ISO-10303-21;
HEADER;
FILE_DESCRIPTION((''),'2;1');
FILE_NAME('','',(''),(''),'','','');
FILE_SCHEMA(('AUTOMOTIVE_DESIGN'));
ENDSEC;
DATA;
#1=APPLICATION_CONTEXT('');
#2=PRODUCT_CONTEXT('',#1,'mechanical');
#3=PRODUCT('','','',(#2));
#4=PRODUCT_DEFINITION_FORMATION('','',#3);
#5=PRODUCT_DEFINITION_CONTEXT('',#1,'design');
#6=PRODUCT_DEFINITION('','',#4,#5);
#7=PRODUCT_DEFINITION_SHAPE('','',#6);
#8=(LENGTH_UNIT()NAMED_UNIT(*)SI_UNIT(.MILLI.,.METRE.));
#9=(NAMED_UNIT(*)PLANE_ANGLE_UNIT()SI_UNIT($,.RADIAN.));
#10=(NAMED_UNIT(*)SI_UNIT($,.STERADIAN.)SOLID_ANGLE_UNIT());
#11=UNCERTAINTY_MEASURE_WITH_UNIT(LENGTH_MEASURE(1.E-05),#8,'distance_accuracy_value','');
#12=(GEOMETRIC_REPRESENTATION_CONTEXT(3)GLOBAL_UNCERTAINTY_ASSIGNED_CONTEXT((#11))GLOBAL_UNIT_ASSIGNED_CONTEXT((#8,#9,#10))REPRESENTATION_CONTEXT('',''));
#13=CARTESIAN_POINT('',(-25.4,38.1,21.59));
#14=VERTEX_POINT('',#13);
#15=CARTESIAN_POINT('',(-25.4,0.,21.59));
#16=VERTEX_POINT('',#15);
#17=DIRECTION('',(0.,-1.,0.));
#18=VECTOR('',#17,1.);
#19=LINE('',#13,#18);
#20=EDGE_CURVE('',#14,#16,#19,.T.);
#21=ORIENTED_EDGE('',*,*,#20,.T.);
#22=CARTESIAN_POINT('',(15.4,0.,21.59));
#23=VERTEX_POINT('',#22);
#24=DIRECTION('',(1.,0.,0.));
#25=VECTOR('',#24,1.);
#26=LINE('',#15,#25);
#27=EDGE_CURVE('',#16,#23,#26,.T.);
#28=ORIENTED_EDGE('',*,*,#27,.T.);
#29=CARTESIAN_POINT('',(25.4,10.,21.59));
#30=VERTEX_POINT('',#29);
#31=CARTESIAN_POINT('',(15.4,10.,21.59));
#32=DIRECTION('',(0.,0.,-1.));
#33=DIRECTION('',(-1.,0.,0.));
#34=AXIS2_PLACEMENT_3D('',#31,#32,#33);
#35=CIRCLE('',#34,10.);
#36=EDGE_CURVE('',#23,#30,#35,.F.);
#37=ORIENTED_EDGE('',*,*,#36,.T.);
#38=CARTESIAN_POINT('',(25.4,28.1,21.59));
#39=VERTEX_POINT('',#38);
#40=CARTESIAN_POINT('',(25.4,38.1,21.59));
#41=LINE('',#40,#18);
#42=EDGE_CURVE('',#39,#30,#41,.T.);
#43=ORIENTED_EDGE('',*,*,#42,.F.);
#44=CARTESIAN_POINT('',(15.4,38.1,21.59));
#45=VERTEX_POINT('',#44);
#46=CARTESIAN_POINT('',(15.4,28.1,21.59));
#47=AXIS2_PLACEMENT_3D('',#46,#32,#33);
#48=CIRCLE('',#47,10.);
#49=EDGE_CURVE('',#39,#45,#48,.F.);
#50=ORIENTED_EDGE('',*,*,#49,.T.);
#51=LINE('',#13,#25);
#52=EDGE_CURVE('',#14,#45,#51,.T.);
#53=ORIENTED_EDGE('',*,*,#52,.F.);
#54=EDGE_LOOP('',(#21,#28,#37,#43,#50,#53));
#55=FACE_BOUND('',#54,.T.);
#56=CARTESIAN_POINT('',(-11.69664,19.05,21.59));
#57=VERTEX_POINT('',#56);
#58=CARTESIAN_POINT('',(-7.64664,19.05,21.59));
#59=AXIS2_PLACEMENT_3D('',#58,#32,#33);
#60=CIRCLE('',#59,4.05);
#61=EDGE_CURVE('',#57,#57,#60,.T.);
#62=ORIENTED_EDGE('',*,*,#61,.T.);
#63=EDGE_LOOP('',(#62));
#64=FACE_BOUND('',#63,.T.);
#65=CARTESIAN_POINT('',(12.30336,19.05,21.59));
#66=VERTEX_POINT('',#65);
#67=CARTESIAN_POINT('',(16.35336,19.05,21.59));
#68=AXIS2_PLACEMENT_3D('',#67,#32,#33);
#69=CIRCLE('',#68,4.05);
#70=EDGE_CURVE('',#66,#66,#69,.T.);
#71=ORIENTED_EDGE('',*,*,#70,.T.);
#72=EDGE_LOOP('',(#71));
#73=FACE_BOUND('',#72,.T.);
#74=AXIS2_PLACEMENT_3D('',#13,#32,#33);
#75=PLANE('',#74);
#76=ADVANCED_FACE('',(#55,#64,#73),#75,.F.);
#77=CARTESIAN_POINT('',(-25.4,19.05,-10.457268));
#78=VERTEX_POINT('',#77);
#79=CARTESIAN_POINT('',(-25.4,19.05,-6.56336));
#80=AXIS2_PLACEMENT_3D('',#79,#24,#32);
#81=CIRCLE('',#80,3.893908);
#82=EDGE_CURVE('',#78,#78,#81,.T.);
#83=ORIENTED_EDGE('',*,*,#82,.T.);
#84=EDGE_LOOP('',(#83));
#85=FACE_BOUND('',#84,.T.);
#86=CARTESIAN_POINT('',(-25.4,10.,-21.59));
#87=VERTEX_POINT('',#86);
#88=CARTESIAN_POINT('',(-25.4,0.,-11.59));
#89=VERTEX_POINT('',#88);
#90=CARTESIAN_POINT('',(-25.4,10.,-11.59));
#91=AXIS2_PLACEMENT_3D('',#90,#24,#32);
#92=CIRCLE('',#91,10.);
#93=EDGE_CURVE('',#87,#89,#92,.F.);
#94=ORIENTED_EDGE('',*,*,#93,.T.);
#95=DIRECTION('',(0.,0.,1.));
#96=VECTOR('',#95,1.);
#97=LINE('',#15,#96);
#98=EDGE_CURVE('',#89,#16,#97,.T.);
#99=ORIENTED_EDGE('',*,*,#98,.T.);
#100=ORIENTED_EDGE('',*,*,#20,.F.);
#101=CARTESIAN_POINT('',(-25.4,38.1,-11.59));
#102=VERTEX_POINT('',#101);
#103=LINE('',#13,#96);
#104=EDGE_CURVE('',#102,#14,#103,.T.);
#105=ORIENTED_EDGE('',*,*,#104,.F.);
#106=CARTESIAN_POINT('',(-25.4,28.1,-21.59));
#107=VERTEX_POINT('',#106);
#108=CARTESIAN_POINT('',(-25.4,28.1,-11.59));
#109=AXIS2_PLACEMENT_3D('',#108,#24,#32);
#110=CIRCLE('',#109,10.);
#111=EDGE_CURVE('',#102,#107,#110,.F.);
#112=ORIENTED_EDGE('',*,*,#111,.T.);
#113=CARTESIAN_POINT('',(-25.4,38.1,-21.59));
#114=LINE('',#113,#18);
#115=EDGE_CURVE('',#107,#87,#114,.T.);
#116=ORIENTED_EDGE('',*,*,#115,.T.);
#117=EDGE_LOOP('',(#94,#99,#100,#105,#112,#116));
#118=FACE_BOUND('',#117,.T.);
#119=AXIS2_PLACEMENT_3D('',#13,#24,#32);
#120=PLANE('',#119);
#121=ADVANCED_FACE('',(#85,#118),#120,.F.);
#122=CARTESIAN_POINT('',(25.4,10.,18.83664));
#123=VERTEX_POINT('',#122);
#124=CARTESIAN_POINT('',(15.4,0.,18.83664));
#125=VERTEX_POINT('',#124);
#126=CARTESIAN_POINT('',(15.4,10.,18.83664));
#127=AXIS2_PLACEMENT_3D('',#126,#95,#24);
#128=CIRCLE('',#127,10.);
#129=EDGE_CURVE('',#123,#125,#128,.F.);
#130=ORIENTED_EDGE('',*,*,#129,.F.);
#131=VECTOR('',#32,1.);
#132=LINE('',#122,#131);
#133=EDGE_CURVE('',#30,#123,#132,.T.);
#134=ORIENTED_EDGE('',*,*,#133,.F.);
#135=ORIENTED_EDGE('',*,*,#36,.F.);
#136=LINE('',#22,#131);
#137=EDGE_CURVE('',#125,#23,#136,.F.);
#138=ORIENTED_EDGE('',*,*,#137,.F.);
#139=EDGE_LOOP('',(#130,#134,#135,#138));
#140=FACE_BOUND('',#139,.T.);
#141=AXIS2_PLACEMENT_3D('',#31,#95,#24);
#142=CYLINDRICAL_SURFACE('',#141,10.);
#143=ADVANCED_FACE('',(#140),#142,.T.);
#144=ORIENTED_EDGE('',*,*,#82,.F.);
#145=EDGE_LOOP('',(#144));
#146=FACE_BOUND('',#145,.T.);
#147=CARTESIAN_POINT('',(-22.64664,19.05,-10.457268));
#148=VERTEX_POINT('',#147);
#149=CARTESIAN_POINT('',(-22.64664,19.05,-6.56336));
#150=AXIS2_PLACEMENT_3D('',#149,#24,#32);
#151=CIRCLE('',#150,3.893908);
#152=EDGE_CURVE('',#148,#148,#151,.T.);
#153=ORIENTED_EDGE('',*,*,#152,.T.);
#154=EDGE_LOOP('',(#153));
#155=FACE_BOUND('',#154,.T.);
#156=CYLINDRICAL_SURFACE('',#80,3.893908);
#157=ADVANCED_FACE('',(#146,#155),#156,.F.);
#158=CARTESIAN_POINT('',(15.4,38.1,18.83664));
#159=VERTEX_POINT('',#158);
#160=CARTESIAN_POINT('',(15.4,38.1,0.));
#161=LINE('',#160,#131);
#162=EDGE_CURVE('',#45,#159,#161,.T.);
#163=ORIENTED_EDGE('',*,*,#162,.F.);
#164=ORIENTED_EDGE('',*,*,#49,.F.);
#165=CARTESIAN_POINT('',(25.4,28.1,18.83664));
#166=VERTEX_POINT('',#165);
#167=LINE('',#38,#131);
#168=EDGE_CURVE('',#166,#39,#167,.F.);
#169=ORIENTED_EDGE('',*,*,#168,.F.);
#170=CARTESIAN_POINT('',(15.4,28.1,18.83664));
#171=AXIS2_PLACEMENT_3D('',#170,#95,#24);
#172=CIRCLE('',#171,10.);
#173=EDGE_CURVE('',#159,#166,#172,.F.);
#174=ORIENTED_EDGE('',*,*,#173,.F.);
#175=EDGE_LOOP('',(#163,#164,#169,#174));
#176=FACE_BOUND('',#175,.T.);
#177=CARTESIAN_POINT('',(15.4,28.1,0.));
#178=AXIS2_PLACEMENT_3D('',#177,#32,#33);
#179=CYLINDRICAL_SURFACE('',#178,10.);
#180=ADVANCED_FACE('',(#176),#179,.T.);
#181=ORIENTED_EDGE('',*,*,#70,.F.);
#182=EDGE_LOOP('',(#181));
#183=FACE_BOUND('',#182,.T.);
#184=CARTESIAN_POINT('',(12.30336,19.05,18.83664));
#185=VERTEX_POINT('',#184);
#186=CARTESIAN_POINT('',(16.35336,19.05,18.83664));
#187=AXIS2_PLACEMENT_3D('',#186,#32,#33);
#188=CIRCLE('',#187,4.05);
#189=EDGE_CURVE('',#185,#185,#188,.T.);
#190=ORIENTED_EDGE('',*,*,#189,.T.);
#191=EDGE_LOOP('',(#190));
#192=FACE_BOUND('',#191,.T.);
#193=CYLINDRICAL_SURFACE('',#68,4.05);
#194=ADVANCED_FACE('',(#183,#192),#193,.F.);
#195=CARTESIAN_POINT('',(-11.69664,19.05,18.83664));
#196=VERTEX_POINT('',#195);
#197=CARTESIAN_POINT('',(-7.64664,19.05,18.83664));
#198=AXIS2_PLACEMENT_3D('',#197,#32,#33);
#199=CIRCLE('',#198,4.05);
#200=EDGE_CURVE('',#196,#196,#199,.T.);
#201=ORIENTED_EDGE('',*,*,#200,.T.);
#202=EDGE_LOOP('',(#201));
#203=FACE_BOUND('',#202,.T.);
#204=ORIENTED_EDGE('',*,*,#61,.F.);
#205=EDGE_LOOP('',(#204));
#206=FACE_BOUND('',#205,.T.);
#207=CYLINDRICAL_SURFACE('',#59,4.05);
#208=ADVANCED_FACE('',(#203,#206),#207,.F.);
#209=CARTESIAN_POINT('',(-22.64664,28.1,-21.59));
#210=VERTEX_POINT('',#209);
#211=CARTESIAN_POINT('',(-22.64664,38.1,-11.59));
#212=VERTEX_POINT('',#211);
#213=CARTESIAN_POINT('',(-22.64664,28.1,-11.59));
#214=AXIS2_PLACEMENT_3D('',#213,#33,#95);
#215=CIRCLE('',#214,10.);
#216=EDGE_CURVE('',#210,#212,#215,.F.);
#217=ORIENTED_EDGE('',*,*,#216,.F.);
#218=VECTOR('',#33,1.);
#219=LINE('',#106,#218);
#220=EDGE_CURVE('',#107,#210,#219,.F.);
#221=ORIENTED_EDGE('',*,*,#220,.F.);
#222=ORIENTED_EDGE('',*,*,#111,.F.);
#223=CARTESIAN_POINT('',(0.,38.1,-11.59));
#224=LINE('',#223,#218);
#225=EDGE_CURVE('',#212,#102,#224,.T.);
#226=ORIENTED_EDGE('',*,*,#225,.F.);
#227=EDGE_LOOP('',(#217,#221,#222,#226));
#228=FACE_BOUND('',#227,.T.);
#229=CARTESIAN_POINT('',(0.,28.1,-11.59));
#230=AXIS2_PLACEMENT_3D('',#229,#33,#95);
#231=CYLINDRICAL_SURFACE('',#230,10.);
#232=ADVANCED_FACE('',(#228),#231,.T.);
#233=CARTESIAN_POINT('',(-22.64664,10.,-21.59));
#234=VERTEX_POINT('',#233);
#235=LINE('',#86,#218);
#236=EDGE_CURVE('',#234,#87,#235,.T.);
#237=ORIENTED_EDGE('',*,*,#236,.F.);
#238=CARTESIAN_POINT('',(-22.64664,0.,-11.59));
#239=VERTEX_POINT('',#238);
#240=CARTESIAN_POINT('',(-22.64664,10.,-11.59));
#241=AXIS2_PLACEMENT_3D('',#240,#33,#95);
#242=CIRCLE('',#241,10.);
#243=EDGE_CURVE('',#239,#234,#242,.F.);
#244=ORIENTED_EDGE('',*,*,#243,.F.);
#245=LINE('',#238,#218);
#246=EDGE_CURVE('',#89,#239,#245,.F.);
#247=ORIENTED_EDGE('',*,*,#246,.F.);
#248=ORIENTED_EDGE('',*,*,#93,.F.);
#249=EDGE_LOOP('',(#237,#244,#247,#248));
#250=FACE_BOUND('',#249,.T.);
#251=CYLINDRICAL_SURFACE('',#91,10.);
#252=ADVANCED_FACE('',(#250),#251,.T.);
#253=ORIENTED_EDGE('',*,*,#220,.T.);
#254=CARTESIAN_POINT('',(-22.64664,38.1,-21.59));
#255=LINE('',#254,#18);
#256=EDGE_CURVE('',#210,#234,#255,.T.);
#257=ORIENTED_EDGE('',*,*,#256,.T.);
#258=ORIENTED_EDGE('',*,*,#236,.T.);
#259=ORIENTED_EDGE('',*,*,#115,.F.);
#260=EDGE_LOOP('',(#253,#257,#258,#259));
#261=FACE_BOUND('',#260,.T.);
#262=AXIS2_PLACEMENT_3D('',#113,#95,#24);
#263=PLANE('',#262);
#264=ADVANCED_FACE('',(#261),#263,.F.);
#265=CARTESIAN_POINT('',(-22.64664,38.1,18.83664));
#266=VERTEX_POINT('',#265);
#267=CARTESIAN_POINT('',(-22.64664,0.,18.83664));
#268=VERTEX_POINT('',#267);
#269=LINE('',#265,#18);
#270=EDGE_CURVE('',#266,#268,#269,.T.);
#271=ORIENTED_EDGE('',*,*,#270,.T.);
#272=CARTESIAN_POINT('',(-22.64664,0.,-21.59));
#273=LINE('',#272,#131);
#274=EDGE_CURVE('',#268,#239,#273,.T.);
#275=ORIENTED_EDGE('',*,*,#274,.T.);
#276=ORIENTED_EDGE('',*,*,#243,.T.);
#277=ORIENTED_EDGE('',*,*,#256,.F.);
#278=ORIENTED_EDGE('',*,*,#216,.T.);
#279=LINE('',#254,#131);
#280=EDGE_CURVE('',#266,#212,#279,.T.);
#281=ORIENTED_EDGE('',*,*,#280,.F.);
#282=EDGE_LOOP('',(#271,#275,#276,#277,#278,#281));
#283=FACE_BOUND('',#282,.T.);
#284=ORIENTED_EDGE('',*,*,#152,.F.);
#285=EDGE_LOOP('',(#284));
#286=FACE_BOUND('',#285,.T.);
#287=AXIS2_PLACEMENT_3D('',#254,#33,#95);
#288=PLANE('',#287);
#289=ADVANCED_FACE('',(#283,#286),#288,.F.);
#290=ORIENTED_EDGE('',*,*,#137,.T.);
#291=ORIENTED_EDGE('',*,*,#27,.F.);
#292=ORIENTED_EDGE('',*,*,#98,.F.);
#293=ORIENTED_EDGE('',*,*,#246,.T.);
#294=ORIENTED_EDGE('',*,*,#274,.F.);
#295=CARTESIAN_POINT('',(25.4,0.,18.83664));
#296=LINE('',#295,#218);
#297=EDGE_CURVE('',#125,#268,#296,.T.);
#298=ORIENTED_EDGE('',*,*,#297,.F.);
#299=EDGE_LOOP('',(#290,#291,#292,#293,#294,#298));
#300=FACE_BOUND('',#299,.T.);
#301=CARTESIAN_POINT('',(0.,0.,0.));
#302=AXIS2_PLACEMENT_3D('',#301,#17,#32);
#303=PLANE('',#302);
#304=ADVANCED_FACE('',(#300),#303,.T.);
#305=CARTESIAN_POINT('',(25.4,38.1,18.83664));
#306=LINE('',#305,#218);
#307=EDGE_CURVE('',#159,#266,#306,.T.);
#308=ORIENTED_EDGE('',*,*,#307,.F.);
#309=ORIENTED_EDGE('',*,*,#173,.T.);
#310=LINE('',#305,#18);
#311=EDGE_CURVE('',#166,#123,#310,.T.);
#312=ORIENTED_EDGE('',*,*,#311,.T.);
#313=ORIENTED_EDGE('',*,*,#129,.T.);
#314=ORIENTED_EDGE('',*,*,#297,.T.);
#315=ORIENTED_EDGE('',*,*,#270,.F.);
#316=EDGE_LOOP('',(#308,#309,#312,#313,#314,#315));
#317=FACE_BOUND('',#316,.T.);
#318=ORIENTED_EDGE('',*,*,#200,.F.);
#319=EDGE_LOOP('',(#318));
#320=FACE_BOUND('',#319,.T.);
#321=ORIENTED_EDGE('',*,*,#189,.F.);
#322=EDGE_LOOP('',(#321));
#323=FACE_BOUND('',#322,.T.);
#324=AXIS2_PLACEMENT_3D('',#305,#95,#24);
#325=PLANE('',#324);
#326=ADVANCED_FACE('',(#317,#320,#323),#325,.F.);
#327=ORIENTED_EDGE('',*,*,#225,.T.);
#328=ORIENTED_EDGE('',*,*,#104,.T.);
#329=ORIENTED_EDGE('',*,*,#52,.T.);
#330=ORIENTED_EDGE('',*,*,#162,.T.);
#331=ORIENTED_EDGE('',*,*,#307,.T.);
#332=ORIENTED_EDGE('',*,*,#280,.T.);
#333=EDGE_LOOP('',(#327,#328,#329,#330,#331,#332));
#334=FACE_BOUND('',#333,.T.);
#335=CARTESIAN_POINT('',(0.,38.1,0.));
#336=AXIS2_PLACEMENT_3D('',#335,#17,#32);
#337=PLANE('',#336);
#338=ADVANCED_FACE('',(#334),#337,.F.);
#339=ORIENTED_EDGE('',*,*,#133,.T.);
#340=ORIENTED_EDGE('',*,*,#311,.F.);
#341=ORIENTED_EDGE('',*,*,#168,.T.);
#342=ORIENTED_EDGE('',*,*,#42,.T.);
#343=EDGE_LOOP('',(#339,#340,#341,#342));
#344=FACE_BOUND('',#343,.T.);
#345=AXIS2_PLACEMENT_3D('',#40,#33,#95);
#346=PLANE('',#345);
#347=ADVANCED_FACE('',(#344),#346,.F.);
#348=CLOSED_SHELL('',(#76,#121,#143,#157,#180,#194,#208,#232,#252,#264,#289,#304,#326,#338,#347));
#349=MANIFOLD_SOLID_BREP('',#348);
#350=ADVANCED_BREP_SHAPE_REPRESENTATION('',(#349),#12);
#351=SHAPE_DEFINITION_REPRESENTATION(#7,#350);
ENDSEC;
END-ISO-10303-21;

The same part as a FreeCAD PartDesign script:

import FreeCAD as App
import Part
import Sketcher

V = App.Vector
Q = App.Units.Quantity


def edges_at(feature, points):
    """Names of the edges that pass closest to the given points."""
    edges = feature.Shape.Edges
    near = lambda p: min(range(len(edges)), key=lambda i: edges[i].distToShape(Part.Vertex(*p))[0])
    return sorted({f"Edge{near(p) + 1}" for p in points})

doc = App.newDocument("Part")
body = doc.addObject("PartDesign::Body", "Body")

# Sketch on XZ plane
sketch1 = doc.addObject("Sketcher::SketchObject", "Sketch")
body.addObject(sketch1)
sketch1.AttachmentSupport = (doc.XZ_Plane, [""])
sketch1.MapMode = "FlatFace"
sketch1.addGeometry(Part.LineSegment(V(-25.4, 21.6, 0), V(25.4, 21.6, 0)), False)
sketch1.addGeometry(Part.LineSegment(V(25.4, 21.6, 0), V(25.4, 18.8, 0)), False)
sketch1.addGeometry(Part.LineSegment(V(25.4, 18.8, 0), V(-22.6, 18.8, 0)), False)
sketch1.addGeometry(Part.LineSegment(V(-22.6, 18.8, 0), V(-22.6, -21.6, 0)), False)
sketch1.addGeometry(Part.LineSegment(V(-22.6, -21.6, 0), V(-25.4, -21.6, 0)), False)
sketch1.addGeometry(Part.LineSegment(V(-25.4, -21.6, 0), V(-25.4, 21.6, 0)), False)
sketch1.addConstraint(Sketcher.Constraint("Coincident", 0, 2, 1, 1))
sketch1.addConstraint(Sketcher.Constraint("Coincident", 1, 2, 2, 1))
sketch1.addConstraint(Sketcher.Constraint("Coincident", 2, 2, 3, 1))
sketch1.addConstraint(Sketcher.Constraint("Coincident", 3, 2, 4, 1))
sketch1.addConstraint(Sketcher.Constraint("Coincident", 4, 2, 5, 1))
sketch1.addConstraint(Sketcher.Constraint("Coincident", 5, 2, 0, 1))
sketch1.addConstraint(Sketcher.Constraint("Horizontal", 0))
sketch1.addConstraint(Sketcher.Constraint("Vertical", 1))
sketch1.addConstraint(Sketcher.Constraint("Horizontal", 2))
sketch1.addConstraint(Sketcher.Constraint("Vertical", 3))
sketch1.addConstraint(Sketcher.Constraint("Horizontal", 4))
sketch1.addConstraint(Sketcher.Constraint("Vertical", 5))
sketch1.addConstraint(Sketcher.Constraint("Symmetric", 0, 2, 4, 2, -1, 1))
sketch1.addConstraint(Sketcher.Constraint("Equal", 4, 1))
sketch1.addConstraint(Sketcher.Constraint("DistanceX", 0, 1, 0, 2, Q("2 in")))
sketch1.addConstraint(Sketcher.Constraint("DistanceY", 5, 1, 5, 2, Q("1.7 in")))
sketch1.addConstraint(Sketcher.Constraint("DistanceX", 2, 2, 2, 1, Q("1.8916 in")))
pad1 = doc.addObject("PartDesign::Pad", "Pad")
body.addObject(pad1)
pad1.Profile = sketch1
pad1.Length = Q("1.5 in")
pad1.Reversed = True
doc.recompute()

fillet = doc.addObject("PartDesign::Fillet", "Fillet")
body.addObject(fillet)
fillet.Base = (pad1, edges_at(pad1, [
    (25.4, 38.1, 20.213),
    (-24.023, 38.1, -21.59),
    (-24.023, 0, -21.59),
    (25.4, 0, 20.213),
]))
fillet.Radius = 10

# Sketch on XY plane
sketch2 = doc.addObject("Sketcher::SketchObject", "Sketch001")
body.addObject(sketch2)
sketch2.AttachmentSupport = (doc.XY_Plane, [""])
sketch2.MapMode = "FlatFace"
sketch2.AttachmentOffset = App.Placement(V(0, 0, 0.7416 * 25.4), App.Rotation())
sketch2.addGeometry(Part.Circle(V(16.4, 19.1, 0), V(0, 0, 1), 4), False)
sketch2.addGeometry(Part.Circle(V(-7.6, 19.1, 0), V(0, 0, 1), 4), False)
sketch2.addConstraint(Sketcher.Constraint("Equal", 0, 1))
sketch2.addConstraint(Sketcher.Constraint("Horizontal", 0, 3, 1, 3))
sketch2.addConstraint(Sketcher.Constraint("Diameter", 0, Q("8.1 mm")))
sketch2.addConstraint(Sketcher.Constraint("DistanceY", -1, 1, 0, 3, Q("0.75 in")))
sketch2.addConstraint(Sketcher.Constraint("DistanceX", 1, 3, 0, 3, Q("24 mm")))
sketch2.addConstraint(Sketcher.Constraint("DistanceX", -1, 1, 0, 3, Q("16.35336 mm")))
pocket1 = doc.addObject("PartDesign::Pocket", "Pocket")
body.addObject(pocket1)
pocket1.Profile = sketch2
pocket1.Type = "ThroughAll"
pocket1.Reversed = True

# Sketch on YZ plane
sketch3 = doc.addObject("Sketcher::SketchObject", "Sketch002")
body.addObject(sketch3)
sketch3.AttachmentSupport = (doc.YZ_Plane, [""])
sketch3.MapMode = "FlatFace"
sketch3.AttachmentOffset = App.Placement(V(0, 0, -0.8916 * 25.4), App.Rotation())
sketch3.addGeometry(Part.Circle(V(19.1, -6.6, 0), V(0, 0, 1), 3.9), False)
sketch3.addConstraint(Sketcher.Constraint("DistanceX", -1, 1, 0, 3, Q("0.75 in")))
sketch3.addConstraint(Sketcher.Constraint("Diameter", 0, Q("7.787815 mm")))
sketch3.addConstraint(Sketcher.Constraint("DistanceY", 0, 3, -1, 1, Q("0.2584 in")))
pocket2 = doc.addObject("PartDesign::Pocket", "Pocket001")
body.addObject(pocket2)
pocket2.Profile = sketch3
pocket2.Type = "ThroughAll"

doc.recompute()
